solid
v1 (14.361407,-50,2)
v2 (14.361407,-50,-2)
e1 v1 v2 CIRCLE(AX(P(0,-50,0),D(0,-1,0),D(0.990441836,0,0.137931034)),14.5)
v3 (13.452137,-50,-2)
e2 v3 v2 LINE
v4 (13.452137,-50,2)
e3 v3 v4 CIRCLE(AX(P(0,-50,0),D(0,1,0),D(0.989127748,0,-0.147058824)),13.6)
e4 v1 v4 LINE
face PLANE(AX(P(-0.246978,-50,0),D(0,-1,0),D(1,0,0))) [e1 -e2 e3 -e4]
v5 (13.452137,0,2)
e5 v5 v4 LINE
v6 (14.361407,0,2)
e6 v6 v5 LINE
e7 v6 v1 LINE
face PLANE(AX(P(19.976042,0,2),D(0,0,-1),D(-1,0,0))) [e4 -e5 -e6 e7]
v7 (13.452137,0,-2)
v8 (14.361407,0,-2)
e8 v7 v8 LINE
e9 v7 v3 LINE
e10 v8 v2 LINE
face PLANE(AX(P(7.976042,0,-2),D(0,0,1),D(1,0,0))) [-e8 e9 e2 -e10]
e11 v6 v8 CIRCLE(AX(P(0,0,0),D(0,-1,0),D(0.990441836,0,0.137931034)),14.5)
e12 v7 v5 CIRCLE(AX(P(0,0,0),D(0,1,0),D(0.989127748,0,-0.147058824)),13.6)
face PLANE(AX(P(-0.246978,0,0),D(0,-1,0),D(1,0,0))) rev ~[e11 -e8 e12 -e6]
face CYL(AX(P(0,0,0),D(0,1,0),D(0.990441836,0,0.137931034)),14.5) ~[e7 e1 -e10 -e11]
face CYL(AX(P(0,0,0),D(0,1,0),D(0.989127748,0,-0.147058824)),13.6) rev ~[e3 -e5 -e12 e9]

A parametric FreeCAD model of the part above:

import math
import FreeCAD as App
import Part
import Sketcher


def add_polygon(sketch, points):
    """Adds a closed chain of lines whose ends are joined by coincident constraints."""
    first, n = sketch.GeometryCount, len(points)
    for a, b in zip(points, points[1:] + points[:1]):
        sketch.addGeometry(Part.LineSegment(App.Vector(*a, 0), App.Vector(*b, 0)), False)
    for i in range(n):
        sketch.addConstraint(Sketcher.Constraint("Coincident", first + i, 2, first + (i + 1) % n, 1))

doc = App.newDocument("Part")
body = doc.addObject("PartDesign::Body", "Body")

# Sketch on XZ plane
sketch1 = doc.addObject("Sketcher::SketchObject", "Sketch")
body.addObject(sketch1)
sketch1.AttachmentSupport = (doc.XZ_Plane, [""])
sketch1.MapMode = "FlatFace"
sketch1.addGeometry([
    Part.ArcOfCircle(Part.Circle(App.Vector(0, 0, 0), App.Vector(0, 0, 1), 14.5), math.radians(8), math.radians(352)),  # 0
    Part.ArcOfCircle(Part.Circle(App.Vector(0, 0, 0), App.Vector(0, 0, 1), 14.5), math.radians(-7.93), math.radians(0)),  # 1
    Part.ArcOfCircle(Part.Circle(App.Vector(0, 0, 0), App.Vector(0, 0, 1), 14.5), math.radians(0), math.radians(7.93)),  # 2
    Part.ArcOfCircle(Part.Circle(App.Vector(0, 0, 0), App.Vector(0, 0, 1), 13.6), math.radians(8), math.radians(352)),  # 3
    Part.ArcOfCircle(Part.Circle(App.Vector(0, 0, 0), App.Vector(0, 0, 1), 13.6), math.radians(0), math.radians(8.46)),  # 4
    Part.ArcOfCircle(Part.Circle(App.Vector(0, 0, 0), App.Vector(0, 0, 1), 13.6), math.radians(-8.46), math.radians(0)),  # 5
], False)
sketch1.addConstraint([
    Sketcher.Constraint("Tangent", 0, 2, 1, 1),
    Sketcher.Constraint("Tangent", 1, 2, 2, 1),
    Sketcher.Constraint("Tangent", 2, 2, 0, 1),
    Sketcher.Constraint("Tangent", 3, 1, 4, 2),
    Sketcher.Constraint("Tangent", 4, 1, 5, 2),
    Sketcher.Constraint("Tangent", 5, 1, 3, 2),
    Sketcher.Constraint("Coincident", 0, 3, -1, 1),
    Sketcher.Constraint("Coincident", 3, 3, -1, 1),
    Sketcher.Constraint("PointOnObject", 1, 2, -1),
    Sketcher.Constraint("PointOnObject", 4, 1, -1),
    Sketcher.Constraint("Horizontal", 2, 2, 3, 1),
    Sketcher.Constraint("Horizontal", 0, 2, 5, 1),
    Sketcher.Constraint("Vertical", 0, 2, 2, 2),
    Sketcher.Constraint("Radius", 0, 14.5),
    Sketcher.Constraint("Radius", 3, 13.6),
    Sketcher.Constraint("DistanceY", 0, 2, -1, 1, 2.0),
])
pad1 = doc.addObject("PartDesign::Pad", "Pad")
body.addObject(pad1)
pad1.Profile = sketch1
pad1.Length = 50

# Sketch on XZ plane
sketch2 = doc.addObject("Sketcher::SketchObject", "Sketch001")
body.addObject(sketch2)
sketch2.AttachmentSupport = (doc.XZ_Plane, [""])
sketch2.MapMode = "FlatFace"
add_polygon(sketch2, [(20, 2), (8, 2), (8, -2), (20, -2)])  # lines 0-3
sketch2.addConstraint([
    Sketcher.Constraint("Horizontal", 0),
    Sketcher.Constraint("Vertical", 1),
    Sketcher.Constraint("Horizontal", 2),
    Sketcher.Constraint("Vertical", 3),
    Sketcher.Constraint("DistanceX", 0, 2, 0, 1, 12.0),
    Sketcher.Constraint("DistanceY", 1, 2, 1, 1, 4.0),
    Sketcher.Constraint("DistanceY", -1, 1, 0, 2, 2.0),
    Sketcher.Constraint("DistanceX", -1, 1, 0, 2, 7.976042),
])
pocket1 = doc.addObject("PartDesign::Pocket", "Pocket")
body.addObject(pocket1)
pocket1.Profile = sketch2
pocket1.Length = 50
pocket1.Reversed = True

doc.recompute()
